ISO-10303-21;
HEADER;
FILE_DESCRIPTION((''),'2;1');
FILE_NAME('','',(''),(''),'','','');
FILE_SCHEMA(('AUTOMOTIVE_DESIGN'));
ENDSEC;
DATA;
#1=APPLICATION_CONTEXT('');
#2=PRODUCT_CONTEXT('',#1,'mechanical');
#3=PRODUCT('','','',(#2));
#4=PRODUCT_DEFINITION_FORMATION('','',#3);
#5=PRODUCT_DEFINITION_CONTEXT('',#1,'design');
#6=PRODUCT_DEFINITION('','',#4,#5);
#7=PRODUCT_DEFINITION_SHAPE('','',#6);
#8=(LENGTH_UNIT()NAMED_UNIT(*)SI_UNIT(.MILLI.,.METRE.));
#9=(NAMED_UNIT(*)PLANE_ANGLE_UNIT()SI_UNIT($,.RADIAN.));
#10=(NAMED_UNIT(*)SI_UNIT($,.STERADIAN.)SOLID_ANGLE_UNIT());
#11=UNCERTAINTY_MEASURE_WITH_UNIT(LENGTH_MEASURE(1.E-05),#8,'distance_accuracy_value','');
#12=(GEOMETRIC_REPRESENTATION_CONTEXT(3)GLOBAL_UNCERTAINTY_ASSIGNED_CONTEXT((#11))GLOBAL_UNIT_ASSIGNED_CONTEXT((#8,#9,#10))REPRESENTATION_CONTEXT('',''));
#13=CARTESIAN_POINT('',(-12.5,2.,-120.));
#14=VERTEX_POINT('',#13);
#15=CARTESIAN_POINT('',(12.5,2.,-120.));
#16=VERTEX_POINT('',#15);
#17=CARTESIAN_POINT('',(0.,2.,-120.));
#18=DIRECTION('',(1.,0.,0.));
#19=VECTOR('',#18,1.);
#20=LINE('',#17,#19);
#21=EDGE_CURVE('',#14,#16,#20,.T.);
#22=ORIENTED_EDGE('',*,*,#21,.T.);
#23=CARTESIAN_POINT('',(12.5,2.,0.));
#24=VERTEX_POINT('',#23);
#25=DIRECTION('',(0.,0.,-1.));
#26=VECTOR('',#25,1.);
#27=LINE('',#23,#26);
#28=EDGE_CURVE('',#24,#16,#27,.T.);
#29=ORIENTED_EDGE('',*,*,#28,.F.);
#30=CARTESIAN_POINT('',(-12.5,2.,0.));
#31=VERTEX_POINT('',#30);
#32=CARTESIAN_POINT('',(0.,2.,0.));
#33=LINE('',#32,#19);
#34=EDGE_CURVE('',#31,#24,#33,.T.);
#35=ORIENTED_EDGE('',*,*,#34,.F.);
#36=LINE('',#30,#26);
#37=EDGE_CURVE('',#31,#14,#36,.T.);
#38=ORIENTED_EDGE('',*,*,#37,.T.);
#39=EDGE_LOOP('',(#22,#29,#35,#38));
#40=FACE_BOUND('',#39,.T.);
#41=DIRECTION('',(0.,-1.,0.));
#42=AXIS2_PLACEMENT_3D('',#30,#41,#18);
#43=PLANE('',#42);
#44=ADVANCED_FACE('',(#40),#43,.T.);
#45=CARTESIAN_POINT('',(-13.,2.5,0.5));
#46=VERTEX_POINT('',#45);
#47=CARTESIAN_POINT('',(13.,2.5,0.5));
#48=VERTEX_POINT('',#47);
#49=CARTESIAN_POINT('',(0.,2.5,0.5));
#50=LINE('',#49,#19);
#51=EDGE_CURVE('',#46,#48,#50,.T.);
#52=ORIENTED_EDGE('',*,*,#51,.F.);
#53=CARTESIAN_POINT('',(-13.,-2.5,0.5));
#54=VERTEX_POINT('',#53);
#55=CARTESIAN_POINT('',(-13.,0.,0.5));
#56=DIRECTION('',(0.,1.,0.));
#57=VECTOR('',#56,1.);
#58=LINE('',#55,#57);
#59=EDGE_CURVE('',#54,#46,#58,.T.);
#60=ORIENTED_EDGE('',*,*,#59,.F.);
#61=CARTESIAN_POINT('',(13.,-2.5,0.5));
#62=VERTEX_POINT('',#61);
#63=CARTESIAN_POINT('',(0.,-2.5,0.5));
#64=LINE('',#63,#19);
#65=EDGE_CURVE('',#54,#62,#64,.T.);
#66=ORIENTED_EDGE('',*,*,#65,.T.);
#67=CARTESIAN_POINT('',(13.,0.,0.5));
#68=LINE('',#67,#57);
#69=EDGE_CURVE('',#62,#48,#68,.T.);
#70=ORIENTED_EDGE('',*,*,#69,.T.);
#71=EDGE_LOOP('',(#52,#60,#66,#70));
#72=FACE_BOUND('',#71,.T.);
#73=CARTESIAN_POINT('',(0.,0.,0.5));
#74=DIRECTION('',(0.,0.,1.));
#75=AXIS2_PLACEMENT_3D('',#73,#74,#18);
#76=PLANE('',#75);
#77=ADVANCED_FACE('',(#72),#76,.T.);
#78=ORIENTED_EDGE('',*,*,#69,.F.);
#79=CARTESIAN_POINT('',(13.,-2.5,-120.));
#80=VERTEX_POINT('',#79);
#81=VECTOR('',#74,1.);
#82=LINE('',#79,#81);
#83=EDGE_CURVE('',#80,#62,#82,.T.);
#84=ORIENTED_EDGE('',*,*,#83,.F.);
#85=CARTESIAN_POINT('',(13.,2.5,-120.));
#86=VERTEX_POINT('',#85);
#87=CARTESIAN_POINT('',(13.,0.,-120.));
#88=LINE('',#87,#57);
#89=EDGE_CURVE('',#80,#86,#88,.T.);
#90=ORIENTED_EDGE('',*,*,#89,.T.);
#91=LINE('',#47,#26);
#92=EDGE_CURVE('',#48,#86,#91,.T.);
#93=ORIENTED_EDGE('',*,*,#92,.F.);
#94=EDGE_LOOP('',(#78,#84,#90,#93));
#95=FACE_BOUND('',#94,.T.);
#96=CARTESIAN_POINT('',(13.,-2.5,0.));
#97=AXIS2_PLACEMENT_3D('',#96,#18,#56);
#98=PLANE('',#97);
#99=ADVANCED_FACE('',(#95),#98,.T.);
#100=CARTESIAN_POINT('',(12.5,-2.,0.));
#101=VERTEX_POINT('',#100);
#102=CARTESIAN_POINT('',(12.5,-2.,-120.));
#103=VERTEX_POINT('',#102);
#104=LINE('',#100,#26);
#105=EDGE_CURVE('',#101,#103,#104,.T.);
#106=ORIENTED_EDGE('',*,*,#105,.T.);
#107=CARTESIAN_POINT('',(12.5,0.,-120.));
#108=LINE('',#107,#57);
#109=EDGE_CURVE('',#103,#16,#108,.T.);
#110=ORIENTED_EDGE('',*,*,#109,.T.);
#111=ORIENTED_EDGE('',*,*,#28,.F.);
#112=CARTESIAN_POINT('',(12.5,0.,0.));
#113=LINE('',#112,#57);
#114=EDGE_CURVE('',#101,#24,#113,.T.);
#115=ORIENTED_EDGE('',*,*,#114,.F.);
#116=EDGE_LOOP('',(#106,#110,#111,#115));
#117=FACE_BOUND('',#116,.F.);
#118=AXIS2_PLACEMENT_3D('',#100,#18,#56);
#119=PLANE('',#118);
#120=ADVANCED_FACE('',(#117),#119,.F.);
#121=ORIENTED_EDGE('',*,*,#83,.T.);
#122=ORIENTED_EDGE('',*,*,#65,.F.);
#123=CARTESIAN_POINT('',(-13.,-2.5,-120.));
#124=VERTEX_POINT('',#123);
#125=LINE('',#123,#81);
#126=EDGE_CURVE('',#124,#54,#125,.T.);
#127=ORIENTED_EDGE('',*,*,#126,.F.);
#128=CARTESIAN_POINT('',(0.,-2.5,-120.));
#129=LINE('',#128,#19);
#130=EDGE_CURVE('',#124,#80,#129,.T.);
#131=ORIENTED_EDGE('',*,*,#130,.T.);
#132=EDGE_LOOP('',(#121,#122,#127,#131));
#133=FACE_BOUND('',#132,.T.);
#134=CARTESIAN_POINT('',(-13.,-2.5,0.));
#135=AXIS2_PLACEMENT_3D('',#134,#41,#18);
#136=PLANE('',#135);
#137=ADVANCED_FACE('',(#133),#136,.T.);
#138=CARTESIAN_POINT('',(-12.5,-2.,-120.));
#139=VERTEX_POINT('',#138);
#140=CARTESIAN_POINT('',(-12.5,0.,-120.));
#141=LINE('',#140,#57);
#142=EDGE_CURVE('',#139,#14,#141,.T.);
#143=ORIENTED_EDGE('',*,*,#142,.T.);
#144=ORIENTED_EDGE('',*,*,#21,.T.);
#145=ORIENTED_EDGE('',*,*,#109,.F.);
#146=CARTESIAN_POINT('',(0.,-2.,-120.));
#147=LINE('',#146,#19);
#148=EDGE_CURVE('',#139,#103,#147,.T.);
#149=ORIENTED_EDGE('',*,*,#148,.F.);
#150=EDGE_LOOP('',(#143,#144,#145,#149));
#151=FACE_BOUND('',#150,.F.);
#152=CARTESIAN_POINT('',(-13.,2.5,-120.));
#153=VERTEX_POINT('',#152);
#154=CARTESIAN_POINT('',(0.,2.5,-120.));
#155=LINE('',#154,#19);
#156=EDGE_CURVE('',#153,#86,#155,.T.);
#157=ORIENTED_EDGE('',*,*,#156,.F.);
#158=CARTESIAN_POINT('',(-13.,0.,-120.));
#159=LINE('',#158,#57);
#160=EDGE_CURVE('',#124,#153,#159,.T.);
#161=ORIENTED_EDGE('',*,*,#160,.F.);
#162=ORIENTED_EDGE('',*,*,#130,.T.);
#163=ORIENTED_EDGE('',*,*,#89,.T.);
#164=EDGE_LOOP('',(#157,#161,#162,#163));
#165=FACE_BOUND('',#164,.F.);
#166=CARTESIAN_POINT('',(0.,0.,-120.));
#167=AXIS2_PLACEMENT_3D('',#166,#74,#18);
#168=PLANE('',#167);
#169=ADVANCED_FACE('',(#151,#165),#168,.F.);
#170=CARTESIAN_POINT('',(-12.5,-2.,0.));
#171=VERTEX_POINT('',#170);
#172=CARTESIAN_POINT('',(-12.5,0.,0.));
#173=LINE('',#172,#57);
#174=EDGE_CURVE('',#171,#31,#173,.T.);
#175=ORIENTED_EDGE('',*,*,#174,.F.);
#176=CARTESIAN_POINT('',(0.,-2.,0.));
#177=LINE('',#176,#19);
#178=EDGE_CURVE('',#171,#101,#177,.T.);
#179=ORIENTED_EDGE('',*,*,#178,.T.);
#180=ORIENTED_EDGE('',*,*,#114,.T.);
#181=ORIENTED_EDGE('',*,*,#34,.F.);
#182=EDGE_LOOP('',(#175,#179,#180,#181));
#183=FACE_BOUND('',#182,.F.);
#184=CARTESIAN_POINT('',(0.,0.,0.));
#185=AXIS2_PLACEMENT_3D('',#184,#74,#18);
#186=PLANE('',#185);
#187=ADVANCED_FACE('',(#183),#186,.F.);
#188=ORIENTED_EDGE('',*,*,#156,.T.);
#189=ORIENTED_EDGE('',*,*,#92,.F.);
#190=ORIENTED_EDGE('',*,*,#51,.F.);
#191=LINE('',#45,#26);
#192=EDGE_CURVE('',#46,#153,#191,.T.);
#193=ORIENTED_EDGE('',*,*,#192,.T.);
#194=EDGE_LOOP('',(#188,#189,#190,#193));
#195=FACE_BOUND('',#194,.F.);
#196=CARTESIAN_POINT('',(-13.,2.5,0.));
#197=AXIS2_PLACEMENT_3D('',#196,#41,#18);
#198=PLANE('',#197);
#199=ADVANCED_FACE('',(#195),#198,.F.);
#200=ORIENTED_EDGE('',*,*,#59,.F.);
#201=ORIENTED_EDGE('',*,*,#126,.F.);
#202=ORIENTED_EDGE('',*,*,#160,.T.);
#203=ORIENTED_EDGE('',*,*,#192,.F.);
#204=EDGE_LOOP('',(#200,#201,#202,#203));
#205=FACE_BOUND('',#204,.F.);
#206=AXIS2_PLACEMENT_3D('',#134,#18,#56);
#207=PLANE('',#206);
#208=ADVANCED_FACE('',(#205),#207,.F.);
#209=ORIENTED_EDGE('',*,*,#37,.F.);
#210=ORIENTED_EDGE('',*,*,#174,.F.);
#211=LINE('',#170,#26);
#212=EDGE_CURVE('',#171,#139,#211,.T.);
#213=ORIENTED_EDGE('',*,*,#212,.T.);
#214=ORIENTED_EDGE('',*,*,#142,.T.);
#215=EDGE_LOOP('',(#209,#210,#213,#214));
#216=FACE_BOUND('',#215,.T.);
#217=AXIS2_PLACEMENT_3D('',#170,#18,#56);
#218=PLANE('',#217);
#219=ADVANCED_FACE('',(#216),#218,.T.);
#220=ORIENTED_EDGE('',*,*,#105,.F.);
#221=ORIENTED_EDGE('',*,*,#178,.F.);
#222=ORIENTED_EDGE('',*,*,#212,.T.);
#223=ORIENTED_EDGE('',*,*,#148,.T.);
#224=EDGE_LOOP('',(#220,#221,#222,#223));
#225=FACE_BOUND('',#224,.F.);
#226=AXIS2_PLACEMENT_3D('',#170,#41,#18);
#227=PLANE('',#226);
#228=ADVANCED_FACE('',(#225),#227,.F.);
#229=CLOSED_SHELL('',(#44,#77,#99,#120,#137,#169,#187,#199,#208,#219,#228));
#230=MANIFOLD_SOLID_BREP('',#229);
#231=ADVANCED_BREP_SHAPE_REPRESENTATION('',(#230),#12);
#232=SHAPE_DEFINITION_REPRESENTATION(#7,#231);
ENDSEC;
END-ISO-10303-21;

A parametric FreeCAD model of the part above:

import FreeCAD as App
import Part
import Sketcher
Q = App.Units.Quantity

doc = App.newDocument("Part")
body = doc.addObject("PartDesign::Body", "Body")

# Sketch on XY plane
sketch1 = doc.addObject("Sketcher::SketchObject", "Sketch")
body.addObject(sketch1)
sketch1.AttachmentSupport = (doc.XY_Plane, [""])
sketch1.MapMode = "FlatFace"
sketch1.addGeometry([
    Part.LineSegment(App.Vector(-13, 2, 0), App.Vector(-13, -2, 0)),
    Part.LineSegment(App.Vector(-13, -2, 0), App.Vector(13, -2, 0)),
    Part.LineSegment(App.Vector(13, -2, 0), App.Vector(13, 2, 0)),
    Part.LineSegment(App.Vector(13, 2, 0), App.Vector(-13, 2, 0)),
], False)
sketch1.addConstraint([
    Sketcher.Constraint("Coincident", 0, 2, 1, 1),
    Sketcher.Constraint("Coincident", 1, 2, 2, 1),
    Sketcher.Constraint("Coincident", 2, 2, 3, 1),
    Sketcher.Constraint("Coincident", 3, 2, 0, 1),
    Sketcher.Constraint("Vertical", 0),
    Sketcher.Constraint("Horizontal", 1),
    Sketcher.Constraint("Vertical", 2),
    Sketcher.Constraint("Horizontal", 3),
    Sketcher.Constraint("Symmetric", 0, 2, 2, 2, -1, 1),
    Sketcher.Constraint("DistanceX", 1, 1, 1, 2, Q("26 mm")),
    Sketcher.Constraint("DistanceY", 0, 2, 0, 1, Q("5 mm")),
])
pad1 = doc.addObject("PartDesign::Pad", "Pad")
body.addObject(pad1)
pad1.Profile = sketch1
pad1.Length = 0.5

# Sketch on XY plane
sketch2 = doc.addObject("Sketcher::SketchObject", "Sketch001")
body.addObject(sketch2)
sketch2.AttachmentSupport = (doc.XY_Plane, [""])
sketch2.MapMode = "FlatFace"
sketch2.addGeometry([
    Part.LineSegment(App.Vector(-13, 2.5, 0), App.Vector(-13, -2.5, 0)),  # 0
    Part.LineSegment(App.Vector(-13, -2.5, 0), App.Vector(13, -2.5, 0)),  # 1
    Part.LineSegment(App.Vector(13, -2.5, 0), App.Vector(13, 2.5, 0)),  # 2
    Part.LineSegment(App.Vector(13, 2.5, 0), App.Vector(-13, 2.5, 0)),  # 3
    Part.LineSegment(App.Vector(12.5, -2, 0), App.Vector(-12.5, -2, 0)),  # 4
    Part.LineSegment(App.Vector(-12.5, -2, 0), App.Vector(-12.5, 2, 0)),  # 5
    Part.LineSegment(App.Vector(-12.5, 2, 0), App.Vector(12.5, 2, 0)),  # 6
    Part.LineSegment(App.Vector(12.5, 2, 0), App.Vector(12.5, -2, 0)),  # 7
], False)
sketch2.addConstraint([
    Sketcher.Constraint("Coincident", 0, 2, 1, 1),
    Sketcher.Constraint("Coincident", 1, 2, 2, 1),
    Sketcher.Constraint("Coincident", 2, 2, 3, 1),
    Sketcher.Constraint("Coincident", 3, 2, 0, 1),
    Sketcher.Constraint("Coincident", 4, 2, 5, 1),
    Sketcher.Constraint("Coincident", 5, 2, 6, 1),
    Sketcher.Constraint("Coincident", 6, 2, 7, 1),
    Sketcher.Constraint("Coincident", 7, 2, 4, 1),
    Sketcher.Constraint("Vertical", 0),
    Sketcher.Constraint("Horizontal", 1),
    Sketcher.Constraint("Vertical", 2),
    Sketcher.Constraint("Horizontal", 3),
    Sketcher.Constraint("Horizontal", 4),
    Sketcher.Constraint("Vertical", 5),
    Sketcher.Constraint("Horizontal", 6),
    Sketcher.Constraint("Vertical", 7),
    Sketcher.Constraint("Symmetric", 0, 2, 2, 2, -1, 1),
    Sketcher.Constraint("Symmetric", 4, 2, 6, 2, -1, 1),
    Sketcher.Constraint("DistanceX", 1, 1, 1, 2, Q("26 mm")),
    Sketcher.Constraint("DistanceX", 4, 2, 4, 1, Q("25 mm")),
    Sketcher.Constraint("DistanceY", 0, 2, 0, 1, Q("5 mm")),
    Sketcher.Constraint("DistanceY", 5, 1, 5, 2, Q("4 mm")),
])
pad2 = doc.addObject("PartDesign::Pad", "Pad001")
body.addObject(pad2)
pad2.Profile = sketch2
pad2.Length = 120
pad2.Reversed = True

doc.recompute()
